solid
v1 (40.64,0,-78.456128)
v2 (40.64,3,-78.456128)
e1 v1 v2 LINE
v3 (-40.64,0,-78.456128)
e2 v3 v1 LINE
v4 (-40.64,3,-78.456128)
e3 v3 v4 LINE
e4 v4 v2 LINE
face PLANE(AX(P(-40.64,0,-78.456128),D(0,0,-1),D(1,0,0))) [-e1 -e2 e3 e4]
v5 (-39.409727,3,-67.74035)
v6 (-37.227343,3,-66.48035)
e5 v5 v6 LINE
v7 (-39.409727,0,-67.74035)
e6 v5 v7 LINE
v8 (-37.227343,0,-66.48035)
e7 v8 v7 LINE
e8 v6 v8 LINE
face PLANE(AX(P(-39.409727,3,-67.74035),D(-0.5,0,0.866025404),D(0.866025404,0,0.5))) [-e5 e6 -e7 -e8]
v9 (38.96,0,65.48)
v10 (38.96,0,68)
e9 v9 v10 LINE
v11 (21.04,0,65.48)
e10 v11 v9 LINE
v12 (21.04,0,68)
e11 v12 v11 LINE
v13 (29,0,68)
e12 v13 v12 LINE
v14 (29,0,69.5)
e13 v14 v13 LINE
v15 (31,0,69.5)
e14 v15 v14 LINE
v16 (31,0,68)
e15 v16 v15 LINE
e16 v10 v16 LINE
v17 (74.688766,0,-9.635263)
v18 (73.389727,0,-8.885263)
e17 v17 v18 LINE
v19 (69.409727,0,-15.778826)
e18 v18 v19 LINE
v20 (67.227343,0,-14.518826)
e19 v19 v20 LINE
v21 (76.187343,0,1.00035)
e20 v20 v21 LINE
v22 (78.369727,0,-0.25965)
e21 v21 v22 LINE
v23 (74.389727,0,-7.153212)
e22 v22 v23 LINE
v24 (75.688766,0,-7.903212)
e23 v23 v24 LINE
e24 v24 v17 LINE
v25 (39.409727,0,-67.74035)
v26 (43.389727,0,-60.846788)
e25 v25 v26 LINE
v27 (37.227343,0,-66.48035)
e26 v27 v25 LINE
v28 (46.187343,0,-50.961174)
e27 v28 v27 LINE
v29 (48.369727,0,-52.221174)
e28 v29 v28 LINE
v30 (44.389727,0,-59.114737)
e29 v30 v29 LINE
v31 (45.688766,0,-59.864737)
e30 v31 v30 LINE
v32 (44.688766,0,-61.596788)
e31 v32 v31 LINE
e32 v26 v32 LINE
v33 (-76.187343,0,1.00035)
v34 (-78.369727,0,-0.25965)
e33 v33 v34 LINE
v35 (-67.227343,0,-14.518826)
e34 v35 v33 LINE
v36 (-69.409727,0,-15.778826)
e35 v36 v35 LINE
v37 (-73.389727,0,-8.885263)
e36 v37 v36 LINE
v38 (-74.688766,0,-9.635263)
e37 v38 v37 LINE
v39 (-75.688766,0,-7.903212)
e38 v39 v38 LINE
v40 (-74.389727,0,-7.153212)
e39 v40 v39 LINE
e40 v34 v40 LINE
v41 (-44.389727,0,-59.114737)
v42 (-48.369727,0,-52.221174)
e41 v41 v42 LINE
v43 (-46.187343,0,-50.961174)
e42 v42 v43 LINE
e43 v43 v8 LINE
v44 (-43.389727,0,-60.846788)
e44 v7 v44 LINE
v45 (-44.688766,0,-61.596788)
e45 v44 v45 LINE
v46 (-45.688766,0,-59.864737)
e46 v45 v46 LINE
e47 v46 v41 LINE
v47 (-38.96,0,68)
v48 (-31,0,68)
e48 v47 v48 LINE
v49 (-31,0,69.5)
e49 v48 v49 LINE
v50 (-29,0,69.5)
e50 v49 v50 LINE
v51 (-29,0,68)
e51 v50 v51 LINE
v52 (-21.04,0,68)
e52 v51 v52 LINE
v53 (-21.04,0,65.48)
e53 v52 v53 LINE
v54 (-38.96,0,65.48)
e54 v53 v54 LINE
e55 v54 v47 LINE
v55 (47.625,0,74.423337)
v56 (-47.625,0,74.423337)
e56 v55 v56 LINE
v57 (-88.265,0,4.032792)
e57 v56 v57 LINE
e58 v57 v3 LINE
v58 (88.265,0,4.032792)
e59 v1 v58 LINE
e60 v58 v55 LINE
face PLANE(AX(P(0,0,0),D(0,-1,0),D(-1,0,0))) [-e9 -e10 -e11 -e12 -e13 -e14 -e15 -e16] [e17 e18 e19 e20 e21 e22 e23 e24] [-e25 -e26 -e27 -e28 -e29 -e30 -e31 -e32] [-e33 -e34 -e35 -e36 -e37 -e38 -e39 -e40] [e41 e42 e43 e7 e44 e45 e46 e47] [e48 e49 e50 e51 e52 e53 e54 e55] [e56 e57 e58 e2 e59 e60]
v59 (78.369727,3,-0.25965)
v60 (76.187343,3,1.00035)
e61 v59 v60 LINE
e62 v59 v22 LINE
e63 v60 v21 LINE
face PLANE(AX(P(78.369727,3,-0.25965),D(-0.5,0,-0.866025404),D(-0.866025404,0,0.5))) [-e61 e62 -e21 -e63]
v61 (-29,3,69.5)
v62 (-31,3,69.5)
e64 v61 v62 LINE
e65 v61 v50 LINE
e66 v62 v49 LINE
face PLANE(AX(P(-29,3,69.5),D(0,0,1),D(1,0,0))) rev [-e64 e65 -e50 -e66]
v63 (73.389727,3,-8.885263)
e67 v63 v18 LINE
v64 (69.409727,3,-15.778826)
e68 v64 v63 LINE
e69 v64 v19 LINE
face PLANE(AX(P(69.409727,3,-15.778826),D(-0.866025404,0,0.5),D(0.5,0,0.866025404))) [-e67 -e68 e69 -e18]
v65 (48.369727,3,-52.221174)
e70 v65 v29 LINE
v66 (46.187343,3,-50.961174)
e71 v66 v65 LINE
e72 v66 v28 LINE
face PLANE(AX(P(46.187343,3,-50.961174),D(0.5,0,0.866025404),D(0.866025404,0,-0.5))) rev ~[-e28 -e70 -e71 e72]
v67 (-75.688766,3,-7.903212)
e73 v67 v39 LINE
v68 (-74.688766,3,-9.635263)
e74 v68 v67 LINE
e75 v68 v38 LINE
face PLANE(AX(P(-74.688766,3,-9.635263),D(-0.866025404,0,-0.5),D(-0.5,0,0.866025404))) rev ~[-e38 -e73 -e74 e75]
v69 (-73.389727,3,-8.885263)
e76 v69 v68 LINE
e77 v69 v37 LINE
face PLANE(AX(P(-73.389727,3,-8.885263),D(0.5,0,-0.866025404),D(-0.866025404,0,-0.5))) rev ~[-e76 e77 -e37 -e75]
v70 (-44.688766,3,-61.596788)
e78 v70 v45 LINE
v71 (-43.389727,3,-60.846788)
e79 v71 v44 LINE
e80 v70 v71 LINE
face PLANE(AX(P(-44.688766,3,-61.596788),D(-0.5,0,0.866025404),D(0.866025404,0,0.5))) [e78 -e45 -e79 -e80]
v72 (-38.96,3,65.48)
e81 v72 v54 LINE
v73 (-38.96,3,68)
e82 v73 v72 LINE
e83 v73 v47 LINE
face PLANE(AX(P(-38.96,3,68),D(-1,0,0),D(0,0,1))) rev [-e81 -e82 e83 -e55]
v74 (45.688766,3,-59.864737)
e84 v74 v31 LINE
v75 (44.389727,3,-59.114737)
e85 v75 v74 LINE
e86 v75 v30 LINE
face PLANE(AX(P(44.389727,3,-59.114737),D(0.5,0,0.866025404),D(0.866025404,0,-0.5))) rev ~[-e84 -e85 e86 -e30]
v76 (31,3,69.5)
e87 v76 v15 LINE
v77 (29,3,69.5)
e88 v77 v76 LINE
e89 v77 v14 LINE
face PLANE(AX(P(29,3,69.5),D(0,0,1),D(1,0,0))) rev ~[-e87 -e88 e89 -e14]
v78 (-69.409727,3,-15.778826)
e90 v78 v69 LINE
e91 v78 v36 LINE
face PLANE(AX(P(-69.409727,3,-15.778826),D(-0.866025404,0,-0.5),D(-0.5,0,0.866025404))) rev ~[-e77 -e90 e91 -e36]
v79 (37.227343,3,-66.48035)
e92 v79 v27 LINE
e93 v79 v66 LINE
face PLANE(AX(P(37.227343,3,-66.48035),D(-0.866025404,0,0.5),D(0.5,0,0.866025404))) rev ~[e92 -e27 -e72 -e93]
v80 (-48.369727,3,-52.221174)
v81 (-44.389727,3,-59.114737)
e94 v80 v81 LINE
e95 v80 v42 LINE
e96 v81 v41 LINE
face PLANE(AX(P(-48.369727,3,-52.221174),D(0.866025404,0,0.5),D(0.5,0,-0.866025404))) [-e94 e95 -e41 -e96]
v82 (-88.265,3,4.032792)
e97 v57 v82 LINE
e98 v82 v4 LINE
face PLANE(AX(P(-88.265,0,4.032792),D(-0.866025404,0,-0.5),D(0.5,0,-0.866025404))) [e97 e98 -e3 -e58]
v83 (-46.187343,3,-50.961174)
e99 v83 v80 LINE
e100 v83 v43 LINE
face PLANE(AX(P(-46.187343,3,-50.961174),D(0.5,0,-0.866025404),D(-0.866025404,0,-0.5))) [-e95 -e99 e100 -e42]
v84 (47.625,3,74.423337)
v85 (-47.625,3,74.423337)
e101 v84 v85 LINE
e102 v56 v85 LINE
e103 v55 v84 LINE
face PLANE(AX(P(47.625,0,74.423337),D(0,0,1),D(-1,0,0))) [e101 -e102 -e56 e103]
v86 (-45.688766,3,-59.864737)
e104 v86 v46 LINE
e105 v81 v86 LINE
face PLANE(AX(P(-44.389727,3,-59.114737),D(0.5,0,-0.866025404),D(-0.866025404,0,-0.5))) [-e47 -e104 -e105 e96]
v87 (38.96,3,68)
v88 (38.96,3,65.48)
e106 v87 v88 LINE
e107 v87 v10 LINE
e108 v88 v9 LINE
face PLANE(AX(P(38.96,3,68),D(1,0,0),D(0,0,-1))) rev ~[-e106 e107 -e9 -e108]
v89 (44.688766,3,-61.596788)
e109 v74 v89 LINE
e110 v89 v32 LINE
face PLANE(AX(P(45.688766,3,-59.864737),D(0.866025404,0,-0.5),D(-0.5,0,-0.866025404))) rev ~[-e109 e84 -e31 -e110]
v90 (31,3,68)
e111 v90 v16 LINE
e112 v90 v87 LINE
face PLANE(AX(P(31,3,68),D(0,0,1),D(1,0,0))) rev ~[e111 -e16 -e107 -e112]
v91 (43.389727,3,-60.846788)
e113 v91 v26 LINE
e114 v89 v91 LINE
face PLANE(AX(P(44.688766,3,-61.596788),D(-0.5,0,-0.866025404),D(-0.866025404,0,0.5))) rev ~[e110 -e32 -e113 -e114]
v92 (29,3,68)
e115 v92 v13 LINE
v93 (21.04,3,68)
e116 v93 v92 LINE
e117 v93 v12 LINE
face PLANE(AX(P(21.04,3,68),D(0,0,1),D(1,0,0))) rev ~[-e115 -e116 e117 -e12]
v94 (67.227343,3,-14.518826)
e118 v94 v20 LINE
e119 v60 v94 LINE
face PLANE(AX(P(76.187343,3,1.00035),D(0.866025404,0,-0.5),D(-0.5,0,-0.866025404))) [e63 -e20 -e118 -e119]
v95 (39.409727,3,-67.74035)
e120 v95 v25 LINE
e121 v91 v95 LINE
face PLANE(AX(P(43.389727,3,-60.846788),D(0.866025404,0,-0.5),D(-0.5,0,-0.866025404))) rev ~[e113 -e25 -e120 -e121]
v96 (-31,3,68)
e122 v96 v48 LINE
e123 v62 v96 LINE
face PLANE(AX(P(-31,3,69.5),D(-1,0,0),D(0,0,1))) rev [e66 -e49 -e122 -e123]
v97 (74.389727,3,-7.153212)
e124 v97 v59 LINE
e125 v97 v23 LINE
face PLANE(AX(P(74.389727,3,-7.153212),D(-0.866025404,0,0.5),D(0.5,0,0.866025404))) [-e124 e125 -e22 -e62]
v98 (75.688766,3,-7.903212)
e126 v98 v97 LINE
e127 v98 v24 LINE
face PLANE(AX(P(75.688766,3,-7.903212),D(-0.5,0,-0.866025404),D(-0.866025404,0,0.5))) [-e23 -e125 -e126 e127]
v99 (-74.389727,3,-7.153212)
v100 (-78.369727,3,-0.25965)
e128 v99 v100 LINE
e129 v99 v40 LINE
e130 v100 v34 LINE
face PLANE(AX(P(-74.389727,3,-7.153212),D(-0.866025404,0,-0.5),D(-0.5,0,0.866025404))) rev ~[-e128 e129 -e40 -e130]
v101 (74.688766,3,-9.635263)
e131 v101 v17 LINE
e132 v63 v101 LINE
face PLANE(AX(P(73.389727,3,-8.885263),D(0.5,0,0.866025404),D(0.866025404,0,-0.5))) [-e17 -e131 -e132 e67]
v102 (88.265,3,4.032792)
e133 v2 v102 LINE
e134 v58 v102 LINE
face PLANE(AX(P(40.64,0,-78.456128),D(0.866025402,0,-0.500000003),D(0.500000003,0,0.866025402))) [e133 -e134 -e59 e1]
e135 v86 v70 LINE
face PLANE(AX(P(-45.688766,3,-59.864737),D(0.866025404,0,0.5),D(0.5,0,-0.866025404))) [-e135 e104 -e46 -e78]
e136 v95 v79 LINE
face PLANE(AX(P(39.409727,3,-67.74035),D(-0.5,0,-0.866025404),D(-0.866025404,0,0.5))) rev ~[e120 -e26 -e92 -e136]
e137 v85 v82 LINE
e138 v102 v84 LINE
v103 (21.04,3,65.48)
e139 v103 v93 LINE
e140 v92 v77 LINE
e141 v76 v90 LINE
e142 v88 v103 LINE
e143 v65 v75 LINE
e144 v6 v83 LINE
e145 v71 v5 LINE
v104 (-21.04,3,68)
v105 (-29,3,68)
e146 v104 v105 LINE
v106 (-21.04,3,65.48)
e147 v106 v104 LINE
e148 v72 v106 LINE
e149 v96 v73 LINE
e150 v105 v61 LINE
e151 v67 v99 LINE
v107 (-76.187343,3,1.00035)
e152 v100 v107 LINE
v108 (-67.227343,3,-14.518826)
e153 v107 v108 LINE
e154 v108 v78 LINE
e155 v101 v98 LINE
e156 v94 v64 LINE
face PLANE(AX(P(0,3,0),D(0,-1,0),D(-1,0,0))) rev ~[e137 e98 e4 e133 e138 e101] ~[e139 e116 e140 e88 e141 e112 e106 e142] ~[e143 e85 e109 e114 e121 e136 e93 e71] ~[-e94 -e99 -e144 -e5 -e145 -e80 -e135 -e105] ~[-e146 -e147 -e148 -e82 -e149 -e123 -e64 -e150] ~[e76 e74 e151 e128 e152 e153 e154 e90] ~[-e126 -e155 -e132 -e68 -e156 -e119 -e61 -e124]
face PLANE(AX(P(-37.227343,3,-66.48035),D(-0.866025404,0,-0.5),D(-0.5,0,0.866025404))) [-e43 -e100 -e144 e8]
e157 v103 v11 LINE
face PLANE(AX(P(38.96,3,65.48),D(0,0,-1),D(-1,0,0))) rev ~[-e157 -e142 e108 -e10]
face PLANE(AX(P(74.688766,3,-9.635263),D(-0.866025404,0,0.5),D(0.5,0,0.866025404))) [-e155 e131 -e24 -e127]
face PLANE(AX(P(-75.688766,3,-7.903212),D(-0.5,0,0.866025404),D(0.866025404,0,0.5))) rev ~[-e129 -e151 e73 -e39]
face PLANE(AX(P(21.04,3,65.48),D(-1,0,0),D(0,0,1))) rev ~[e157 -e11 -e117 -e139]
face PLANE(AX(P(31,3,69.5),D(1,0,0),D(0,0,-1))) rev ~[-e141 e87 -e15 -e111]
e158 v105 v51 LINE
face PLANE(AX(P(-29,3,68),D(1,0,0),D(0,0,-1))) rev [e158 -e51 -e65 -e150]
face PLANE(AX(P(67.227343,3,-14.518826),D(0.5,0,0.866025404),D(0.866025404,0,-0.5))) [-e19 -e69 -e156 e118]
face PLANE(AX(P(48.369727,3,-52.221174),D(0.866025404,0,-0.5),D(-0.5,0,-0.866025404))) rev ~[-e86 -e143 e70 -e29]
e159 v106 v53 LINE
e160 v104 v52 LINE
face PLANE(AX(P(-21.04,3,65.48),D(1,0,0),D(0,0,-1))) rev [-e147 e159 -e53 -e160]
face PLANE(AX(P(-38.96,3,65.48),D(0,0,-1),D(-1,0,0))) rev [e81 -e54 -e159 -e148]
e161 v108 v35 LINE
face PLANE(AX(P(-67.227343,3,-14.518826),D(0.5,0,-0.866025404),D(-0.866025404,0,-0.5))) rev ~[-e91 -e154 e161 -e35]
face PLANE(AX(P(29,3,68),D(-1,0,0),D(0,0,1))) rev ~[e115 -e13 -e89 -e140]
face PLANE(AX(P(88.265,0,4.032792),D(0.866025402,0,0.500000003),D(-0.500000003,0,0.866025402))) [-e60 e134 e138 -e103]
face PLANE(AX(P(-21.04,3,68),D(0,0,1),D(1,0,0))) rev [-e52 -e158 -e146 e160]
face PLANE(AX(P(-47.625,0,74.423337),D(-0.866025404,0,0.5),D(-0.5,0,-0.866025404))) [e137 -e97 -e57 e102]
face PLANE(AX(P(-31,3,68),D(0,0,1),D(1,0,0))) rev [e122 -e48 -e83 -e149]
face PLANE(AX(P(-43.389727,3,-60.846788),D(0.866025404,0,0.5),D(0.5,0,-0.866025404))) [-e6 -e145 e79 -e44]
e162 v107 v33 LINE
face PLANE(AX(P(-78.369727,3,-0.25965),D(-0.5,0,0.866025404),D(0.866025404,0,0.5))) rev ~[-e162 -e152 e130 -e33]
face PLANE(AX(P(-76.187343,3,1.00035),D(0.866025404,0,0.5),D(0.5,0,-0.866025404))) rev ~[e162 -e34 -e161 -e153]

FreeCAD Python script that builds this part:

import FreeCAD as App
import Part
import Sketcher
from FreeCAD import Vector
Q = App.Units.Quantity

doc = App.newDocument("Part")
body = doc.addObject("PartDesign::Body", "Body")

sketch1 = body.newObject("Sketcher::SketchObject", "Sketch")
sketch1.AttachmentSupport = (doc.getObject("XZ_Plane"), [""])
sketch1.MapMode = "FlatFace"
sketch1.addGeometry([
    Part.LineSegment(Vector(41, -78, 0), Vector(-41, -78, 0)),
    Part.LineSegment(Vector(-41, -78, 0), Vector(-88, 4, 0)),
    Part.LineSegment(Vector(-88, 4, 0), Vector(-48, 74, 0)),
    Part.LineSegment(Vector(-48, 74, 0), Vector(48, 74, 0)),
    Part.LineSegment(Vector(48, 74, 0), Vector(88, 4, 0)),
    Part.LineSegment(Vector(88, 4, 0), Vector(41, -78, 0)),
], False)
sketch1.addConstraint([
    Sketcher.Constraint("Coincident", 0, 2, 1, 1),
    Sketcher.Constraint("Coincident", 1, 2, 2, 1),
    Sketcher.Constraint("Coincident", 2, 2, 3, 1),
    Sketcher.Constraint("Coincident", 3, 2, 4, 1),
    Sketcher.Constraint("Coincident", 4, 2, 5, 1),
    Sketcher.Constraint("Coincident", 5, 2, 0, 1),
    Sketcher.Constraint("Horizontal", 0),
    Sketcher.Constraint("Horizontal", 3),
    Sketcher.Constraint("Symmetric", 1, 2, 4, 2, -2),
    Sketcher.Constraint("Parallel", 1, 4),
    Sketcher.Constraint("Parallel", 2, 5),
    Sketcher.Constraint("Equal", 2, 4),
    Sketcher.Constraint("Angle", 1, Q("120 deg")),
    Sketcher.Constraint("DistanceX", 0, 2, 0, 1, 81.28),
    Sketcher.Constraint("DistanceX", 3, 1, 3, 2, 95.25),
    Sketcher.Constraint("Distance", 1, 95.25),
    Sketcher.Constraint("DistanceY", 0, 2, -1, 1, 78.456128),
])
pad1 = body.newObject("PartDesign::Pad", "Pad")
pad1.Profile = sketch1
pad1.Length = 3
pad1.Reversed = True

sketch2 = body.newObject("Sketcher::SketchObject", "Sketch001")
sketch2.AttachmentSupport = (doc.getObject("XZ_Plane"), [""])
sketch2.MapMode = "FlatFace"
sketch2.AttachmentOffset = App.Placement(Vector(0, 0, -3), App.Rotation())
sketch2.addGeometry([
    Part.LineSegment(Vector(29, 68, 0), Vector(29, 69.5, 0)),
    Part.LineSegment(Vector(29, 69.5, 0), Vector(31, 69.5, 0)),
    Part.LineSegment(Vector(31, 69.5, 0), Vector(31, 68, 0)),
    Part.LineSegment(Vector(31, 68, 0), Vector(39, 68, 0)),
    Part.LineSegment(Vector(39, 68, 0), Vector(39, 65.5, 0)),
    Part.LineSegment(Vector(39, 65.5, 0), Vector(21, 65.5, 0)),
    Part.LineSegment(Vector(21, 65.5, 0), Vector(21, 68, 0)),
    Part.LineSegment(Vector(21, 68, 0), Vector(29, 68, 0)),
], False)
sketch2.addConstraint([
    Sketcher.Constraint("Coincident", 0, 2, 1, 1),
    Sketcher.Constraint("Coincident", 1, 2, 2, 1),
    Sketcher.Constraint("Coincident", 2, 2, 3, 1),
    Sketcher.Constraint("Coincident", 3, 2, 4, 1),
    Sketcher.Constraint("Coincident", 4, 2, 5, 1),
    Sketcher.Constraint("Coincident", 5, 2, 6, 1),
    Sketcher.Constraint("Coincident", 6, 2, 7, 1),
    Sketcher.Constraint("Coincident", 7, 2, 0, 1),
    Sketcher.Constraint("Vertical", 0),
    Sketcher.Constraint("Horizontal", 1),
    Sketcher.Constraint("Vertical", 2),
    Sketcher.Constraint("Horizontal", 3),
    Sketcher.Constraint("Vertical", 4),
    Sketcher.Constraint("Horizontal", 5),
    Sketcher.Constraint("Vertical", 6),
    Sketcher.Constraint("Horizontal", 7),
    Sketcher.Constraint("Horizontal", 3, 2, 6, 2),
    Sketcher.Constraint("Equal", 3, 7),
    Sketcher.Constraint("DistanceX", 1, 1, 1, 2, 2.0),
    Sketcher.Constraint("DistanceY", 0, 1, 0, 2, 1.5),
    Sketcher.Constraint("DistanceX", -1, 1, 0, 2, 29.0),
    Sketcher.Constraint("DistanceY", -1, 1, 2, 2, 68.0),
    Sketcher.Constraint("DistanceX", 3, 1, 3, 2, 7.96),
    Sketcher.Constraint("DistanceY", 4, 2, 4, 1, 2.52),
])
pocket1 = body.newObject("PartDesign::Pocket", "Pocket")
pocket1.Profile = sketch2
pocket1.Type = "ThroughAll"
pocket1.Reversed = True
doc.recompute()

mirrored = body.newObject("PartDesign::Mirrored", "Mirrored")
mirrored.Originals = [pocket1]
mirrored.MirrorPlane = (doc.getObject("YZ_Plane"), [""])
body.Tip = mirrored
doc.recompute()

polarpattern = body.newObject("PartDesign::PolarPattern", "PolarPattern")
polarpattern.Originals = [pocket1]
polarpattern.Axis = (doc.getObject("Y_Axis"), [""])
polarpattern.Angle = 360
polarpattern.Occurrences = 3
body.Tip = polarpattern

sketch3 = body.newObject("Sketcher::SketchObject", "Sketch002")
sketch3.AttachmentSupport = (doc.getObject("XZ_Plane"), [""])
sketch3.MapMode = "FlatFace"
sketch3.AttachmentOffset = App.Placement(Vector(0, 0, -3), App.Rotation())
sketch3.addGeometry([
    Part.LineSegment(Vector(74.7, -9.6, 0), Vector(73.4, -8.9, 0)),
    Part.LineSegment(Vector(73.4, -8.9, 0), Vector(69.4, -15.8, 0)),
    Part.LineSegment(Vector(69.4, -15.8, 0), Vector(67.2, -14.5, 0)),
    Part.LineSegment(Vector(67.2, -14.5, 0), Vector(76.2, 1, 0)),
    Part.LineSegment(Vector(76.2, 1, 0), Vector(78.4, -0.3, 0)),
    Part.LineSegment(Vector(78.4, -0.3, 0), Vector(74.4, -7.2, 0)),
    Part.LineSegment(Vector(74.4, -7.2, 0), Vector(75.7, -7.9, 0)),
    Part.LineSegment(Vector(75.7, -7.9, 0), Vector(74.7, -9.6, 0)),
], False)
sketch3.addConstraint([
    Sketcher.Constraint("Coincident", 0, 2, 1, 1),
    Sketcher.Constraint("Coincident", 1, 2, 2, 1),
    Sketcher.Constraint("Coincident", 2, 2, 3, 1),
    Sketcher.Constraint("Coincident", 3, 2, 4, 1),
    Sketcher.Constraint("Coincident", 4, 2, 5, 1),
    Sketcher.Constraint("Coincident", 5, 2, 6, 1),
    Sketcher.Constraint("Coincident", 6, 2, 7, 1),
    Sketcher.Constraint("Coincident", 7, 2, 0, 1),
    Sketcher.Constraint("Perpendicular", 0, 1),
    Sketcher.Constraint("Perpendicular", 1, 2),
    Sketcher.Constraint("Perpendicular", 2, 3),
    Sketcher.Constraint("Perpendicular", 3, 4),
    Sketcher.Constraint("Perpendicular", 4, 5),
    Sketcher.Constraint("Perpendicular", 5, 6),
    Sketcher.Constraint("Perpendicular", 6, 7),
    Sketcher.Constraint("Equal", 2, 4),
    Sketcher.Constraint("Equal", 1, 5),
    Sketcher.Constraint("Angle", 0, Q("150 deg")),
    Sketcher.Constraint("Distance", 7, 2.0),
    Sketcher.Constraint("Distance", 0, 1.5),
    Sketcher.Constraint("Distance", 1, 7.96),
    Sketcher.Constraint("Distance", 2, 2.52),
    Sketcher.Constraint("DistanceY", -1, 1, 3, 2, 1.00035),
    Sketcher.Constraint("DistanceX", -1, 1, 0, 2, 73.389727),
])
pocket2 = body.newObject("PartDesign::Pocket", "Pocket001")
pocket2.Profile = sketch3
pocket2.Type = "ThroughAll"
pocket2.Reversed = True

sketch4 = body.newObject("Sketcher::SketchObject", "Sketch003")
sketch4.AttachmentSupport = (doc.getObject("XZ_Plane"), [""])
sketch4.MapMode = "FlatFace"
sketch4.AttachmentOffset = App.Placement(Vector(0, 0, -3), App.Rotation())
sketch4.addGeometry([
    Part.LineSegment(Vector(-45.7, -59.9, 0), Vector(-44.4, -59.1, 0)),
    Part.LineSegment(Vector(-44.4, -59.1, 0), Vector(-48.4, -52.2, 0)),
    Part.LineSegment(Vector(-48.4, -52.2, 0), Vector(-46.2, -51, 0)),
    Part.LineSegment(Vector(-46.2, -51, 0), Vector(-37.2, -66.5, 0)),
    Part.LineSegment(Vector(-37.2, -66.5, 0), Vector(-39.4, -67.7, 0)),
    Part.LineSegment(Vector(-39.4, -67.7, 0), Vector(-43.4, -60.8, 0)),
    Part.LineSegment(Vector(-43.4, -60.8, 0), Vector(-44.7, -61.6, 0)),
    Part.LineSegment(Vector(-44.7, -61.6, 0), Vector(-45.7, -59.9, 0)),
], False)
sketch4.addConstraint([
    Sketcher.Constraint("Coincident", 0, 2, 1, 1),
    Sketcher.Constraint("Coincident", 1, 2, 2, 1),
    Sketcher.Constraint("Coincident", 2, 2, 3, 1),
    Sketcher.Constraint("Coincident", 3, 2, 4, 1),
    Sketcher.Constraint("Coincident", 4, 2, 5, 1),
    Sketcher.Constraint("Coincident", 5, 2, 6, 1),
    Sketcher.Constraint("Coincident", 6, 2, 7, 1),
    Sketcher.Constraint("Coincident", 7, 2, 0, 1),
    Sketcher.Constraint("Perpendicular", 0, 1),
    Sketcher.Constraint("Perpendicular", 1, 2),
    Sketcher.Constraint("Perpendicular", 2, 3),
    Sketcher.Constraint("Perpendicular", 3, 4),
    Sketcher.Constraint("Perpendicular", 4, 5),
    Sketcher.Constraint("Perpendicular", 5, 6),
    Sketcher.Constraint("Perpendicular", 6, 7),
    Sketcher.Constraint("Equal", 2, 4),
    Sketcher.Constraint("Equal", 1, 5),
    Sketcher.Constraint("Angle", 0, Q("30 deg")),
    Sketcher.Constraint("Distance", 7, 2.0),
    Sketcher.Constraint("Distance", 0, 1.5),
    Sketcher.Constraint("Distance", 1, 7.96),
    Sketcher.Constraint("Distance", 2, 2.52),
    Sketcher.Constraint("DistanceY", 3, 2, -1, 1, 66.48035),
    Sketcher.Constraint("DistanceX", 0, 2, -1, 1, 44.389727),
])
pocket3 = body.newObject("PartDesign::Pocket", "Pocket002")
pocket3.Profile = sketch4
pocket3.Type = "ThroughAll"
pocket3.Reversed = True

doc.recompute()
